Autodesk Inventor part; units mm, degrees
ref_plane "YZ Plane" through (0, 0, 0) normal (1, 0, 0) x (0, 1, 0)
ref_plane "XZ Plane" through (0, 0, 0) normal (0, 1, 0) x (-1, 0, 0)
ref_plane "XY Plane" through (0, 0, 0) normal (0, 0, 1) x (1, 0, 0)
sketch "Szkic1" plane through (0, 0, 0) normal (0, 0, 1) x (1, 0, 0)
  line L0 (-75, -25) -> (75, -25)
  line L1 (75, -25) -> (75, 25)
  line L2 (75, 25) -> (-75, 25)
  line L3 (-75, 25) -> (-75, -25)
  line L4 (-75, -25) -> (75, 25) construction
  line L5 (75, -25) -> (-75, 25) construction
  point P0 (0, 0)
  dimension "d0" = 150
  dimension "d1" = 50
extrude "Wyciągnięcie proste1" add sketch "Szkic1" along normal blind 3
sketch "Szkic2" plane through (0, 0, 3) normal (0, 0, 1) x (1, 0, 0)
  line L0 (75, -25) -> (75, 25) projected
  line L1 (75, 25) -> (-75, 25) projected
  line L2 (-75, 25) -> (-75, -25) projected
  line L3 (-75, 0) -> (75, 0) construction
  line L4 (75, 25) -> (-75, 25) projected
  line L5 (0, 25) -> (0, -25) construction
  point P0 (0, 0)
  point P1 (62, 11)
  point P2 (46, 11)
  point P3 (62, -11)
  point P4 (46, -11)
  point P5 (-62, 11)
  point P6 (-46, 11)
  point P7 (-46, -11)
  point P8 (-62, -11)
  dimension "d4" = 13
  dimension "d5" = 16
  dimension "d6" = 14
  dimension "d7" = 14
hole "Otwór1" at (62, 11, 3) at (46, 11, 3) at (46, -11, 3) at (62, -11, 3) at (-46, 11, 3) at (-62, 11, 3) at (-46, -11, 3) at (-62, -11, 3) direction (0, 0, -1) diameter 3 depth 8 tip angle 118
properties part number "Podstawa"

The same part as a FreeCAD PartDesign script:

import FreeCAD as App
import Part
import Sketcher
from FreeCAD import Vector
Q = App.Units.Quantity

doc = App.newDocument("Part")
body = doc.addObject("PartDesign::Body", "Body")

# Sketch on XY plane
sketch1 = body.newObject("Sketcher::SketchObject", "Sketch")
sketch1.AttachmentSupport = (doc.getObject("XY_Plane"), [""])
sketch1.MapMode = "FlatFace"
sketch1.addGeometry([
    Part.LineSegment(Vector(-75, 25, 0), Vector(-75, -25, 0)),
    Part.LineSegment(Vector(-75, -25, 0), Vector(75, -25, 0)),
    Part.LineSegment(Vector(75, -25, 0), Vector(75, 25, 0)),
    Part.LineSegment(Vector(75, 25, 0), Vector(-75, 25, 0)),
], False)
sketch1.addConstraint([
    Sketcher.Constraint("Coincident", 0, 2, 1, 1),
    Sketcher.Constraint("Coincident", 1, 2, 2, 1),
    Sketcher.Constraint("Coincident", 2, 2, 3, 1),
    Sketcher.Constraint("Coincident", 3, 2, 0, 1),
    Sketcher.Constraint("Vertical", 0),
    Sketcher.Constraint("Horizontal", 1),
    Sketcher.Constraint("Vertical", 2),
    Sketcher.Constraint("Horizontal", 3),
    Sketcher.Constraint("Symmetric", 0, 2, 2, 2, -1, 1),
    Sketcher.Constraint("DistanceX", 1, 1, 1, 2, Q("150 mm")),
    Sketcher.Constraint("DistanceY", 0, 2, 0, 1, Q("50 mm")),
])
pad1 = body.newObject("PartDesign::Pad", "Pad")
pad1.Profile = sketch1
pad1.Length = 3

# Sketch on XY plane
sketch2 = body.newObject("Sketcher::SketchObject", "Sketch001")
sketch2.AttachmentSupport = (doc.getObject("XY_Plane"), [""])
sketch2.MapMode = "FlatFace"
sketch2.AttachmentOffset = App.Placement(Vector(0, 0, 3), App.Rotation())
sketch2.addGeometry([
    Part.Circle(Vector(62, 11, 0), Vector(0, 0, 1), 1.5),  # 0
    Part.Circle(Vector(46, 11, 0), Vector(0, 0, 1), 1.5),  # 1
    Part.Circle(Vector(46, -11, 0), Vector(0, 0, 1), 1.5),  # 2
    Part.Circle(Vector(62, -11, 0), Vector(0, 0, 1), 1.5),  # 3
    Part.Circle(Vector(-46, 11, 0), Vector(0, 0, 1), 1.5),  # 4
    Part.Circle(Vector(-62, 11, 0), Vector(0, 0, 1), 1.5),  # 5
    Part.Circle(Vector(-46, -11, 0), Vector(0, 0, 1), 1.5),  # 6
    Part.Circle(Vector(-62, -11, 0), Vector(0, 0, 1), 1.5),  # 7
], False)
sketch2.addConstraint([
    Sketcher.Constraint("Equal", 0, 1),
    Sketcher.Constraint("Equal", 1, 2),
    Sketcher.Constraint("Equal", 2, 3),
    Sketcher.Constraint("Equal", 3, 4),
    Sketcher.Constraint("Equal", 4, 5),
    Sketcher.Constraint("Equal", 5, 6),
    Sketcher.Constraint("Equal", 6, 7),
    Sketcher.Constraint("Symmetric", 2, 3, 4, 3, -1, 1),
    Sketcher.Constraint("Symmetric", 3, 3, 5, 3, -1, 1),
    Sketcher.Constraint("Symmetric", 1, 3, 6, 3, -1, 1),
    Sketcher.Constraint("Symmetric", 0, 3, 7, 3, -1, 1),
    Sketcher.Constraint("Symmetric", 1, 3, 4, 3, -2),
    Sketcher.Constraint("Symmetric", 0, 3, 5, 3, -2),
    Sketcher.Constraint("Horizontal", 0, 3, 1, 3),
    Sketcher.Constraint("Diameter", 0, Q("3 mm")),
    Sketcher.Constraint("DistanceX", -1, 1, 0, 3, Q("62 mm")),
    Sketcher.Constraint("DistanceY", -1, 1, 0, 3, Q("11 mm")),
    Sketcher.Constraint("DistanceX", -1, 1, 1, 3, Q("46 mm")),
])
doc.recompute()
hole = body.newObject("PartDesign::Hole", "Hole")
hole.Profile = sketch2
hole.ThreadType = "None"
hole.Diameter = 3
hole.DepthType = "Dimension"
hole.Depth = 8
hole.DrillPoint = "Angled"
hole.DrillPointAngle = 118

doc.recompute()
